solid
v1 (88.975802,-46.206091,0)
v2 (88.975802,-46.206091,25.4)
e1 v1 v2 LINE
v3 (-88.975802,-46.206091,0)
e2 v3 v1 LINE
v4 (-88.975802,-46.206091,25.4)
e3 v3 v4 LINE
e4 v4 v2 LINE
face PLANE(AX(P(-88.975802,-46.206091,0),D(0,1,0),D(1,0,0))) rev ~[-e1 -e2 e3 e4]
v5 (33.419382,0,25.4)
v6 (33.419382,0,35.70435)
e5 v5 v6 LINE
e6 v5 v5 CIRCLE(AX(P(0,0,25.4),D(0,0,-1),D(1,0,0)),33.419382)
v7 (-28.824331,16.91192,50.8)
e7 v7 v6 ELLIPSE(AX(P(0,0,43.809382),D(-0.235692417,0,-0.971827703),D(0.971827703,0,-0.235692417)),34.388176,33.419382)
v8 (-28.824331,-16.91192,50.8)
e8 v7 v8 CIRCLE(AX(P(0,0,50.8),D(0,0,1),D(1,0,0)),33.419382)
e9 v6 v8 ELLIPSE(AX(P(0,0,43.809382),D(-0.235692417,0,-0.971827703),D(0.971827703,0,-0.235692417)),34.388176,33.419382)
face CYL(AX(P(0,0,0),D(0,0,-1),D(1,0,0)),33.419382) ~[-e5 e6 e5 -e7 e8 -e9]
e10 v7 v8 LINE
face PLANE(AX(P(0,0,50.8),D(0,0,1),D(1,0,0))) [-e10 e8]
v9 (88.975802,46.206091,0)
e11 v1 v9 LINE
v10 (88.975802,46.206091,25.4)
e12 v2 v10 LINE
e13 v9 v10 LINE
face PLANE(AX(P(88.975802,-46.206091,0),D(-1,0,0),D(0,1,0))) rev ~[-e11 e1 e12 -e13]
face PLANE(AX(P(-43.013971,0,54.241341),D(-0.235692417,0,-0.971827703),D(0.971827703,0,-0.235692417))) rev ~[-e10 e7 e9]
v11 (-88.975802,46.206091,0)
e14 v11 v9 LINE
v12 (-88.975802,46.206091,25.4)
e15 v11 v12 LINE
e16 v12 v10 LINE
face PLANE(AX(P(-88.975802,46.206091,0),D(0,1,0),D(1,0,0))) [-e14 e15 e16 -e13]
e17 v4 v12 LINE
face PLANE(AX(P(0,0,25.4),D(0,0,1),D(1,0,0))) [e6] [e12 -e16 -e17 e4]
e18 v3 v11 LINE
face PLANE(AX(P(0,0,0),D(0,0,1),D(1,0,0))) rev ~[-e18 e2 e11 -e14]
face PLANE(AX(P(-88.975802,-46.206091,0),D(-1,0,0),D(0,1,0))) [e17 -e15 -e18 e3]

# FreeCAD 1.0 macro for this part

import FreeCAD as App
import Part
import Sketcher

V = App.Vector
Q = App.Units.Quantity

doc = App.newDocument("Part")
body = doc.addObject("PartDesign::Body", "Body")

# Sketch on XY plane
sketch1 = doc.addObject("Sketcher::SketchObject", "Sketch")
body.addObject(sketch1)
sketch1.AttachmentSupport = (doc.XY_Plane, [""])
sketch1.MapMode = "FlatFace"
sketch1.addGeometry([
    Part.LineSegment(V(-89, 46, 0), V(-89, -46, 0)),
    Part.LineSegment(V(-89, -46, 0), V(89, -46, 0)),
    Part.LineSegment(V(89, -46, 0), V(89, 46, 0)),
    Part.LineSegment(V(89, 46, 0), V(-89, 46, 0)),
], False)
sketch1.addConstraint([
    Sketcher.Constraint("Coincident", 0, 2, 1, 1),
    Sketcher.Constraint("Coincident", 1, 2, 2, 1),
    Sketcher.Constraint("Coincident", 2, 2, 3, 1),
    Sketcher.Constraint("Coincident", 3, 2, 0, 1),
    Sketcher.Constraint("Vertical", 0),
    Sketcher.Constraint("Horizontal", 1),
    Sketcher.Constraint("Vertical", 2),
    Sketcher.Constraint("Horizontal", 3),
    Sketcher.Constraint("Symmetric", 0, 2, 2, 2, -1, 1),
    Sketcher.Constraint("DistanceY", 0, 2, 0, 1, Q("92.412182 mm")),
    Sketcher.Constraint("DistanceX", 0, 2, -1, 1, Q("88.975802 mm")),
])
pad1 = doc.addObject("PartDesign::Pad", "Pad")
body.addObject(pad1)
pad1.Profile = sketch1
pad1.Length = Q("1 in")

# Sketch on XY plane
sketch2 = doc.addObject("Sketcher::SketchObject", "Sketch001")
body.addObject(sketch2)
sketch2.AttachmentSupport = (doc.XY_Plane, [""])
sketch2.MapMode = "FlatFace"
sketch2.addGeometry(Part.Circle(V(0, 0, 0), V(0, 0, 1), 33), False)
sketch2.addConstraint([
    Sketcher.Constraint("Coincident", 0, 3, -1, 1),
    Sketcher.Constraint("Diameter", 0, Q("66.838764 mm")),
])
pad2 = doc.addObject("PartDesign::Pad", "Pad001")
body.addObject(pad2)
pad2.Profile = sketch2
pad2.Length = Q("2 in")

# Sketch on XZ plane
sketch3 = doc.addObject("Sketcher::SketchObject", "Sketch002")
body.addObject(sketch3)
sketch3.AttachmentSupport = (doc.XZ_Plane, [""])
sketch3.MapMode = "FlatFace"
sketch3.addGeometry([
    Part.LineSegment(V(45, 56, 0), V(-43, 54, 0)),
    Part.LineSegment(V(-43, 54, 0), V(45, 33, 0)),
    Part.LineSegment(V(45, 33, 0), V(45, 56, 0)),
], False)
sketch3.addConstraint([
    Sketcher.Constraint("Coincident", 0, 2, 1, 1),
    Sketcher.Constraint("Coincident", 1, 2, 2, 1),
    Sketcher.Constraint("Coincident", 2, 2, 0, 1),
    Sketcher.Constraint("Vertical", 2),
    Sketcher.Constraint("Distance", 1, Q("90.322248 mm")),
    Sketcher.Constraint("DistanceY", 2, 1, 2, 2, Q("23.329612 mm")),
    Sketcher.Constraint("DistanceX", 0, 2, -1, 1, Q("43.013971 mm")),
    Sketcher.Constraint("DistanceY", -1, 1, 0, 2, Q("54.241341 mm")),
    Sketcher.Constraint("DistanceY", 1, 2, 0, 2, Q("21.288269 mm")),
])
pocket1 = doc.addObject("PartDesign::Pocket", "Pocket")
body.addObject(pocket1)
pocket1.Profile = sketch3
pocket1.Length = Q("3 in")
pocket1.Midplane = True

doc.recompute()
